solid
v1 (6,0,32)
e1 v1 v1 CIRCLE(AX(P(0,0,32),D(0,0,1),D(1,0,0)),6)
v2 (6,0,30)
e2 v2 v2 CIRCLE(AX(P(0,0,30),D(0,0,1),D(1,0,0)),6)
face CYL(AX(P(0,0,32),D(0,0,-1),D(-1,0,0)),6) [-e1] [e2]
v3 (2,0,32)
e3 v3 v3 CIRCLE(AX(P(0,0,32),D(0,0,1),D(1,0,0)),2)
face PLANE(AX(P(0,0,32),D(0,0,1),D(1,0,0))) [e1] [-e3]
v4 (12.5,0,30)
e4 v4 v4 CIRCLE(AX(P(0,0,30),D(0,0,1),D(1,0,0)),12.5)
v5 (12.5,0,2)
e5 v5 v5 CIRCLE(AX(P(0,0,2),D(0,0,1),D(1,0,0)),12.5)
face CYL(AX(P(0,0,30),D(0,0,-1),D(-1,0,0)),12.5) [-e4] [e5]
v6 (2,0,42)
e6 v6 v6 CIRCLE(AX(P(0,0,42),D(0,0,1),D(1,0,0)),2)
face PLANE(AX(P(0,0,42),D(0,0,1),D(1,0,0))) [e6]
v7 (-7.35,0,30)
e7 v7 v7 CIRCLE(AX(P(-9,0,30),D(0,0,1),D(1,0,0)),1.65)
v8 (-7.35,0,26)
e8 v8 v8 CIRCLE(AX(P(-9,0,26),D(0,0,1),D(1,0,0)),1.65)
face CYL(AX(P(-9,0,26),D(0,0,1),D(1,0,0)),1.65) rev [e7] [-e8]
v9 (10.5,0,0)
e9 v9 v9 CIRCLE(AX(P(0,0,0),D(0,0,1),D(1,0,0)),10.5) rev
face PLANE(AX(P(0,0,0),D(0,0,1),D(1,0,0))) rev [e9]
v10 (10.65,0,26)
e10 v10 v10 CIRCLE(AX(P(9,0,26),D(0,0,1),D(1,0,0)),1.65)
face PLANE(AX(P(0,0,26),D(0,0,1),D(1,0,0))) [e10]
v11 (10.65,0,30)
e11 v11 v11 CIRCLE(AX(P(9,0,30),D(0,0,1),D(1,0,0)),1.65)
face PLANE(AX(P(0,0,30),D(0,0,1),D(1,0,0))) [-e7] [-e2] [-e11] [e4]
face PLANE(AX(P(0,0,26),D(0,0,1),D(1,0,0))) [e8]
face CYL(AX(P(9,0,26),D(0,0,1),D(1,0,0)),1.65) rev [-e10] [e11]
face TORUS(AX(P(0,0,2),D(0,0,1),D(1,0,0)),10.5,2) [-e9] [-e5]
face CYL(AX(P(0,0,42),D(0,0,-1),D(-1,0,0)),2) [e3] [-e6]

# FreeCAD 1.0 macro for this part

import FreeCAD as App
import Part
import Sketcher

V = App.Vector
Q = App.Units.Quantity


def edges_at(feature, points):
    """Names of the edges that pass closest to the given points."""
    edges = feature.Shape.Edges
    near = lambda p: min(range(len(edges)), key=lambda i: edges[i].distToShape(Part.Vertex(*p))[0])
    return sorted({f"Edge{near(p) + 1}" for p in points})

doc = App.newDocument("Part")
body = doc.addObject("PartDesign::Body", "Body")

# Sketch on XY plane
sketch1 = body.newObject("Sketcher::SketchObject", "Sketch")
sketch1.AttachmentSupport = (doc.getObject("XY_Plane"), [""])
sketch1.MapMode = "FlatFace"
sketch1.addGeometry(Part.Circle(V(0, 0, 0), V(0, 0, 1), 12.5), False)
sketch1.addConstraint(Sketcher.Constraint("Coincident", 0, 3, -1, 1))
sketch1.addConstraint(Sketcher.Constraint("Diameter", 0, Q("25 mm")))
pad1 = body.newObject("PartDesign::Pad", "Pad")
pad1.Profile = sketch1
pad1.Length = 30

# Sketch on XY plane
sketch2 = body.newObject("Sketcher::SketchObject", "Sketch001")
sketch2.AttachmentSupport = (doc.getObject("XY_Plane"), [""])
sketch2.MapMode = "FlatFace"
sketch2.AttachmentOffset = App.Placement(V(0, 0, 30), App.Rotation())
sketch2.addGeometry(Part.Circle(V(-9, 0, 0), V(0, 0, 1), 1.65), False)
sketch2.addGeometry(Part.Circle(V(9, 0, 0), V(0, 0, 1), 1.65), False)
sketch2.addConstraint(Sketcher.Constraint("Equal", 0, 1))
sketch2.addConstraint(Sketcher.Constraint("Symmetric", 0, 3, 1, 3, -1, 1))
sketch2.addConstraint(Sketcher.Constraint("PointOnObject", 0, 3, -1))
sketch2.addConstraint(Sketcher.Constraint("Diameter", 0, Q("3.3 mm")))
sketch2.addConstraint(Sketcher.Constraint("DistanceX", 0, 3, -1, 1, Q("9 mm")))
pocket1 = body.newObject("PartDesign::Pocket", "Pocket")
pocket1.Profile = sketch2
pocket1.Length = 4

# Sketch on XY plane
sketch3 = body.newObject("Sketcher::SketchObject", "Sketch002")
sketch3.AttachmentSupport = (doc.getObject("XY_Plane"), [""])
sketch3.MapMode = "FlatFace"
sketch3.AttachmentOffset = App.Placement(V(0, 0, 30), App.Rotation())
sketch3.addGeometry(Part.Circle(V(0, 0, 0), V(0, 0, 1), 6), False)
sketch3.addConstraint(Sketcher.Constraint("Coincident", 0, 3, -1, 1))
sketch3.addConstraint(Sketcher.Constraint("Diameter", 0, Q("12 mm")))
pad2 = body.newObject("PartDesign::Pad", "Pad001")
pad2.Profile = sketch3
pad2.Length = 2

# Sketch on XY plane
sketch4 = body.newObject("Sketcher::SketchObject", "Sketch003")
sketch4.AttachmentSupport = (doc.getObject("XY_Plane"), [""])
sketch4.MapMode = "FlatFace"
sketch4.AttachmentOffset = App.Placement(V(0, 0, 32), App.Rotation())
sketch4.addGeometry(Part.Circle(V(0, 0, 0), V(0, 0, 1), 2), False)
sketch4.addConstraint(Sketcher.Constraint("Coincident", 0, 3, -1, 1))
sketch4.addConstraint(Sketcher.Constraint("Diameter", 0, Q("4 mm")))
pad3 = body.newObject("PartDesign::Pad", "Pad002")
pad3.Profile = sketch4
pad3.Length = 10
doc.recompute()

fillet = body.newObject("PartDesign::Fillet", "Fillet")
fillet.Base = (pad3, edges_at(pad3, [(-12.5, 0, 0)]))
fillet.Radius = 2

doc.recompute()
